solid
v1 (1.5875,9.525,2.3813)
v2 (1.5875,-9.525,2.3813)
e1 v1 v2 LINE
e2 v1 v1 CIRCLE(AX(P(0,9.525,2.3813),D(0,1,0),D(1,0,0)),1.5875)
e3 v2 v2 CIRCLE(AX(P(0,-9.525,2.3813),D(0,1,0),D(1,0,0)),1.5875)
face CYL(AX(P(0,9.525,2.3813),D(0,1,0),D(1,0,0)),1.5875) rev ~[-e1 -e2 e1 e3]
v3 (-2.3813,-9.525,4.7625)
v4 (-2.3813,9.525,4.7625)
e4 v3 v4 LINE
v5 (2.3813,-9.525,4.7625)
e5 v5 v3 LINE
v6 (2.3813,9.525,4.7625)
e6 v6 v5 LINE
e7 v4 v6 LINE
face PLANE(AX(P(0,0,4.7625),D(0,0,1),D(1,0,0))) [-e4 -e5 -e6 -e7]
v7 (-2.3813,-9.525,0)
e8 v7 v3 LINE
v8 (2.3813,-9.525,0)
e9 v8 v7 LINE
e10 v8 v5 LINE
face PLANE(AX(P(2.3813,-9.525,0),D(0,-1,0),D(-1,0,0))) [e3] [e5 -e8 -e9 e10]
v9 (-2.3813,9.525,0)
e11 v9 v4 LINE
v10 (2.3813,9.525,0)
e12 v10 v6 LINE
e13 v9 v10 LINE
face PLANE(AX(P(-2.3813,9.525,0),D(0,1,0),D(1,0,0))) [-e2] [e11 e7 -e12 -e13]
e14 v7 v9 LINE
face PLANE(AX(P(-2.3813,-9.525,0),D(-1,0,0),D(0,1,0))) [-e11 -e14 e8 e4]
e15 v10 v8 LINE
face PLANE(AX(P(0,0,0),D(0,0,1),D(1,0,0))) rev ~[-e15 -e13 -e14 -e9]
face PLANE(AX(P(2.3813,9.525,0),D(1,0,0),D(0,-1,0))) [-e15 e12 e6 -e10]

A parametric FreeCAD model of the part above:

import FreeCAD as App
import Part
import Sketcher

V = App.Vector
Q = App.Units.Quantity

doc = App.newDocument("Part")
body = doc.addObject("PartDesign::Body", "Body")

# Sketch on XY plane
sketch1 = body.newObject("Sketcher::SketchObject", "Sketch")
sketch1.AttachmentSupport = (doc.getObject("XY_Plane"), [""])
sketch1.MapMode = "FlatFace"
sketch1.addGeometry(Part.LineSegment(V(2.4, 9.5, 0), V(-2.4, 9.5, 0)), False)
sketch1.addGeometry(Part.LineSegment(V(-2.4, 9.5, 0), V(-2.4, -9.5, 0)), False)
sketch1.addGeometry(Part.LineSegment(V(-2.4, -9.5, 0), V(2.4, -9.5, 0)), False)
sketch1.addGeometry(Part.LineSegment(V(2.4, -9.5, 0), V(2.4, 9.5, 0)), False)
sketch1.addConstraint(Sketcher.Constraint("Coincident", 0, 2, 1, 1))
sketch1.addConstraint(Sketcher.Constraint("Coincident", 1, 2, 2, 1))
sketch1.addConstraint(Sketcher.Constraint("Coincident", 2, 2, 3, 1))
sketch1.addConstraint(Sketcher.Constraint("Coincident", 3, 2, 0, 1))
sketch1.addConstraint(Sketcher.Constraint("Horizontal", 0))
sketch1.addConstraint(Sketcher.Constraint("Vertical", 1))
sketch1.addConstraint(Sketcher.Constraint("Horizontal", 2))
sketch1.addConstraint(Sketcher.Constraint("Vertical", 3))
sketch1.addConstraint(Sketcher.Constraint("Symmetric", 0, 2, 2, 2, -1, 1))
sketch1.addConstraint(Sketcher.Constraint("DistanceY", 1, 2, 1, 1, Q("0.75 in")))
sketch1.addConstraint(Sketcher.Constraint("DistanceX", 0, 2, 0, 1, Q("0.1875 in")))
pad1 = body.newObject("PartDesign::Pad", "Pad")
pad1.Profile = sketch1
pad1.Length = Q("0.1875 in")

# Sketch on XZ plane
sketch2 = body.newObject("Sketcher::SketchObject", "Sketch001")
sketch2.AttachmentSupport = (doc.getObject("XZ_Plane"), [""])
sketch2.MapMode = "FlatFace"
sketch2.AttachmentOffset = App.Placement(V(0, 0, -0.375 * 25.4), App.Rotation())
sketch2.addGeometry(Part.Circle(V(0, 2.4, 0), V(0, 0, 1), 1.6), False)
sketch2.addConstraint(Sketcher.Constraint("PointOnObject", 0, 3, -2))
sketch2.addConstraint(Sketcher.Constraint("Diameter", 0, Q("0.125 in")))
sketch2.addConstraint(Sketcher.Constraint("DistanceY", -1, 1, 0, 3, Q("0.093752 in")))
pocket1 = body.newObject("PartDesign::Pocket", "Pocket")
pocket1.Profile = sketch2
pocket1.Type = "ThroughAll"
pocket1.Reversed = True

doc.recompute()
